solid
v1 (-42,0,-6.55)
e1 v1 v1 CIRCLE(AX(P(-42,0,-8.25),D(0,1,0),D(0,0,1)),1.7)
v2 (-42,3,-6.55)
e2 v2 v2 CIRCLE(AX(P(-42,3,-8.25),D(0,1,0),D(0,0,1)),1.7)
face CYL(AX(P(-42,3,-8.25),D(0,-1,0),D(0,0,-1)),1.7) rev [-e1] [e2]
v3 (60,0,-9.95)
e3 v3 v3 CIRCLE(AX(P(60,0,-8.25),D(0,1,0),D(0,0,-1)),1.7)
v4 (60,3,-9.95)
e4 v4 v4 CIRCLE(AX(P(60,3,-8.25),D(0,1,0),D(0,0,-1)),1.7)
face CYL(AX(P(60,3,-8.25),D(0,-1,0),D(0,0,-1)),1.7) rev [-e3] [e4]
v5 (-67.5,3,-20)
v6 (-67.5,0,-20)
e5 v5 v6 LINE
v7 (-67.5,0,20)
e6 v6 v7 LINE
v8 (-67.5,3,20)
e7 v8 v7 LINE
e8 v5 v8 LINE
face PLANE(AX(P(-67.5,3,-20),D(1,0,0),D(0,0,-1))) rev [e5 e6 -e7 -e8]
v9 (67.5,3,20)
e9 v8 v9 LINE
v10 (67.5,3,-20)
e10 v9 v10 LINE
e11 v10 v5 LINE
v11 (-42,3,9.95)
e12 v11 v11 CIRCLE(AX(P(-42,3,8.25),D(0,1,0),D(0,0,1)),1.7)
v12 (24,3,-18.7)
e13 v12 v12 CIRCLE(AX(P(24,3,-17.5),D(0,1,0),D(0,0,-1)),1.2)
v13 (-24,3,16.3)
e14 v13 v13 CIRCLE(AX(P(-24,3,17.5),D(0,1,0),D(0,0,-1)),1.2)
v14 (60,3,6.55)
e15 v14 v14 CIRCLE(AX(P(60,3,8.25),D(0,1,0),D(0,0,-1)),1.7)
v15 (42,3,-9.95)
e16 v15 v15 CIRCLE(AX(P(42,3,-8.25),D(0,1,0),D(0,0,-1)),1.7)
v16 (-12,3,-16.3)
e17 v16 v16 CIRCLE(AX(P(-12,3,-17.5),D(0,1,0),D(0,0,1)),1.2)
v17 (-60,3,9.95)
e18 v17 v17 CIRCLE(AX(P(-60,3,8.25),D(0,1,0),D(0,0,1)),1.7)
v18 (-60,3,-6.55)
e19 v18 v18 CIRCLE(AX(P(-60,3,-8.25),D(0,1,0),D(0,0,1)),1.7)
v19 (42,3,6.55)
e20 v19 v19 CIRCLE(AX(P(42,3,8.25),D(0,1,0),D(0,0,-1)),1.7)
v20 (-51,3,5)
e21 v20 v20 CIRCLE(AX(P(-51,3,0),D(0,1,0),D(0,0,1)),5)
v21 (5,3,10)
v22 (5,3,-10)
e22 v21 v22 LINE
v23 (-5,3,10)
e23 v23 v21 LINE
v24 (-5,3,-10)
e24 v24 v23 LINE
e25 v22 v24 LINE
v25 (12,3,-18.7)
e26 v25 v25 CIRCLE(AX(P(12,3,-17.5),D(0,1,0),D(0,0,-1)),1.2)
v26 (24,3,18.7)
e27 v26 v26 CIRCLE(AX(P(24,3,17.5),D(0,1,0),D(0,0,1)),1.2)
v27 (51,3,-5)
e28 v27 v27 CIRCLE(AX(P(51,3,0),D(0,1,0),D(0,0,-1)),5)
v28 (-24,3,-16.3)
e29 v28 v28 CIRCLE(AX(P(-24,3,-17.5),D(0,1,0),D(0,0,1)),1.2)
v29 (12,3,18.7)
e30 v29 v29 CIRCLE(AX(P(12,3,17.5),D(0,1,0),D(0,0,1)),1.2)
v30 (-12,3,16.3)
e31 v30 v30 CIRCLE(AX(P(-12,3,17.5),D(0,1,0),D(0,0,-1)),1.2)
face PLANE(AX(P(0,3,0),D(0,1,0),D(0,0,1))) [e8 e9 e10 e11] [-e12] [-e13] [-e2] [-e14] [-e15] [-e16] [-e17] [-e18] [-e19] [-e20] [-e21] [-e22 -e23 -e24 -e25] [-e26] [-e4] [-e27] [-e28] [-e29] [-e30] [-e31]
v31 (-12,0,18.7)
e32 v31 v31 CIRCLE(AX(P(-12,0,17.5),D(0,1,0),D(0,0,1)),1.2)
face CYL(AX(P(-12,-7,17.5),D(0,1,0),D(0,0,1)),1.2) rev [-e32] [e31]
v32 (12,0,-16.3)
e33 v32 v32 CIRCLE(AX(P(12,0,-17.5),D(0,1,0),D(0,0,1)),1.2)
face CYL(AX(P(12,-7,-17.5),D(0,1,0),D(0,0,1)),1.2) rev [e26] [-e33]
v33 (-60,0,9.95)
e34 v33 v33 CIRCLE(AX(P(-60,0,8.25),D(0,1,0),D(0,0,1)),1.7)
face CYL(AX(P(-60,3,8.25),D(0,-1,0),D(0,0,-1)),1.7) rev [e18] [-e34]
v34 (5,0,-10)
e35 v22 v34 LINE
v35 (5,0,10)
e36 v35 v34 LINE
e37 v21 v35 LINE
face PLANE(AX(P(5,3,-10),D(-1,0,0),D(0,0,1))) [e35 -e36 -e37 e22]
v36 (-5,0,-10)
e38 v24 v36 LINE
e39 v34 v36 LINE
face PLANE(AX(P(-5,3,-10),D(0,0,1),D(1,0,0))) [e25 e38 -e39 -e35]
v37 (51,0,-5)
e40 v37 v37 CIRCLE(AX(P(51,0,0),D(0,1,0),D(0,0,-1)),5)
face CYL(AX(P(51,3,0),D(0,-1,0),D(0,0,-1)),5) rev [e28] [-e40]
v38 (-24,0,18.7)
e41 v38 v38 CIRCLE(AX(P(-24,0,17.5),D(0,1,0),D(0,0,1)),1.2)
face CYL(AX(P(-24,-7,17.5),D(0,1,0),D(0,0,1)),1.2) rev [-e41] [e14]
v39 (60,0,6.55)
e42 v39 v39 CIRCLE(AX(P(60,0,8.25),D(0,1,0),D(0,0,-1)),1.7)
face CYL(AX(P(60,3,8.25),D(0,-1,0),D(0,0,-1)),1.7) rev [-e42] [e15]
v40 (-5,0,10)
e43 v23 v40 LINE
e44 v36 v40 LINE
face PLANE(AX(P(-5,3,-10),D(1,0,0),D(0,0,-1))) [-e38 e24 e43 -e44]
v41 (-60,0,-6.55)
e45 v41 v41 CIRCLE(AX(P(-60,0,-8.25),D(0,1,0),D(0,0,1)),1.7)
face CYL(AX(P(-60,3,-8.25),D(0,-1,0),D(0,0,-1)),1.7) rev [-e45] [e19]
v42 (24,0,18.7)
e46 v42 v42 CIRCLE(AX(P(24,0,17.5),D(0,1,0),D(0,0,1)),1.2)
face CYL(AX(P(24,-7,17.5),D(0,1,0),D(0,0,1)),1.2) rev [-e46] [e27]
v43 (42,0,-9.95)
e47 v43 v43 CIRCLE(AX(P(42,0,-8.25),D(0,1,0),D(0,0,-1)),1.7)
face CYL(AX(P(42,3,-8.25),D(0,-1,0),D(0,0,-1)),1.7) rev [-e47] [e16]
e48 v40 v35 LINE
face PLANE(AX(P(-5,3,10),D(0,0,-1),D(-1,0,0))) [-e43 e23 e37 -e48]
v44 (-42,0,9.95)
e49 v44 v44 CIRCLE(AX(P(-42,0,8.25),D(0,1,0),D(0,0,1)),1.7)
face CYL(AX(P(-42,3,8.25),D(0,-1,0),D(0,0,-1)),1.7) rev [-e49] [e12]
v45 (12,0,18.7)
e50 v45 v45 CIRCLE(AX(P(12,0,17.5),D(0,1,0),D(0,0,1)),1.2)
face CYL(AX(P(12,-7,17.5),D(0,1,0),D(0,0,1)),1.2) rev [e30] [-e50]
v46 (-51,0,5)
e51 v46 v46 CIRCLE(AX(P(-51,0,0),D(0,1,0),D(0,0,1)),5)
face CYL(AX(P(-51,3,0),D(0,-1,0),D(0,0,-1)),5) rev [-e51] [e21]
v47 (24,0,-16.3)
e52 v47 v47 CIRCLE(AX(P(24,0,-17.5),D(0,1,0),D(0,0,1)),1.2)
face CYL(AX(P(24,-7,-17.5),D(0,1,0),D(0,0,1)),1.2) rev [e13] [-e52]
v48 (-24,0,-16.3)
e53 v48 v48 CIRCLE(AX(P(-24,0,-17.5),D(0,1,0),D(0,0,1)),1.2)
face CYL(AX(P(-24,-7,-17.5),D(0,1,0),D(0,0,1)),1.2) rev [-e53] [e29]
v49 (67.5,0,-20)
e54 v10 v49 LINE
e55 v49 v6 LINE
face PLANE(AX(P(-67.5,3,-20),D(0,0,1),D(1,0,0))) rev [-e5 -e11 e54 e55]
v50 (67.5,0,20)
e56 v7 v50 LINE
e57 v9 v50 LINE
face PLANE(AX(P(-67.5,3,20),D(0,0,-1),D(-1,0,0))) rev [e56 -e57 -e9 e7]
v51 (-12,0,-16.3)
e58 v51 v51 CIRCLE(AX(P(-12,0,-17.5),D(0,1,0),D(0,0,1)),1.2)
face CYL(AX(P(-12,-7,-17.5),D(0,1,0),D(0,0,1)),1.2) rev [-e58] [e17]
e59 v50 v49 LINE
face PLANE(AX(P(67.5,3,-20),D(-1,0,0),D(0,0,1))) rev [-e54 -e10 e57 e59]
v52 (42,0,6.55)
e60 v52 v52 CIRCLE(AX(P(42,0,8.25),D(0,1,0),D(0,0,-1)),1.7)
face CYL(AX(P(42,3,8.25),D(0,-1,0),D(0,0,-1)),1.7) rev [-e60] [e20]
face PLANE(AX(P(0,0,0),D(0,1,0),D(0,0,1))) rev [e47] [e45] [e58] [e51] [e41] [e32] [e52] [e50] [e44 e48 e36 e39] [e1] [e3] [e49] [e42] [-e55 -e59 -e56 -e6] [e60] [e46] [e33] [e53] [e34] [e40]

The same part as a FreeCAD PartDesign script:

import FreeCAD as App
import Part
import Sketcher


def add_polygon(sketch, points):
    """Adds a closed chain of lines whose ends are joined by coincident constraints."""
    first, n = sketch.GeometryCount, len(points)
    for a, b in zip(points, points[1:] + points[:1]):
        sketch.addGeometry(Part.LineSegment(App.Vector(*a, 0), App.Vector(*b, 0)), False)
    for i in range(n):
        sketch.addConstraint(Sketcher.Constraint("Coincident", first + i, 2, first + (i + 1) % n, 1))

doc = App.newDocument("Part")
body = doc.addObject("PartDesign::Body", "Body")

sketch1 = body.newObject("Sketcher::SketchObject", "Sketch")
sketch1.AttachmentSupport = (doc.getObject("XZ_Plane"), [""])
sketch1.MapMode = "FlatFace"
add_polygon(sketch1, [(-67.5, -20), (-67.5, 20), (67.5, 20), (67.5, -20)])
sketch1.addGeometry(Part.Circle(App.Vector(-60, 8.25, 0), App.Vector(0, 0, 1), 1.7), False)
sketch1.addGeometry(Part.Circle(App.Vector(-42, 8.25, 0), App.Vector(0, 0, 1), 1.7), False)
sketch1.addGeometry(Part.Circle(App.Vector(42, 8.25, 0), App.Vector(0, 0, 1), 1.7), False)
sketch1.addGeometry(Part.Circle(App.Vector(60, 8.25, 0), App.Vector(0, 0, 1), 1.7), False)
sketch1.addGeometry(Part.Circle(App.Vector(-51, 0, 0), App.Vector(0, 0, 1), 5), False)
sketch1.addGeometry(Part.Circle(App.Vector(-60, -8.25, 0), App.Vector(0, 0, 1), 1.7), False)
sketch1.addGeometry(Part.Circle(App.Vector(-42, -8.25, 0), App.Vector(0, 0, 1), 1.7), False)
add_polygon(sketch1, [(5, 10), (-5, 10), (-5, -10), (5, -10)])
sketch1.addGeometry(Part.Circle(App.Vector(51, 0, 0), App.Vector(0, 0, 1), 5), False)
sketch1.addGeometry(Part.Circle(App.Vector(42, -8.25, 0), App.Vector(0, 0, 1), 1.7), False)
sketch1.addGeometry(Part.Circle(App.Vector(60, -8.25, 0), App.Vector(0, 0, 1), 1.7), False)
sketch1.addConstraint([
    Sketcher.Constraint("Vertical", 0),
    Sketcher.Constraint("Horizontal", 1),
    Sketcher.Constraint("Vertical", 2),
    Sketcher.Constraint("Horizontal", 3),
    Sketcher.Constraint("Horizontal", 11),
    Sketcher.Constraint("Vertical", 12),
    Sketcher.Constraint("Horizontal", 13),
    Sketcher.Constraint("Vertical", 14),
    Sketcher.Constraint("Equal", 4, 5),
    Sketcher.Constraint("Equal", 5, 6),
    Sketcher.Constraint("Equal", 6, 7),
    Sketcher.Constraint("Equal", 7, 9),
    Sketcher.Constraint("Equal", 9, 10),
    Sketcher.Constraint("Equal", 8, 15),
    Sketcher.Constraint("Equal", 10, 16),
    Sketcher.Constraint("Equal", 16, 17),
    Sketcher.Constraint("Symmetric", 7, 3, 9, 3, -1, 1),
    Sketcher.Constraint("Symmetric", 6, 3, 10, 3, -1, 1),
    Sketcher.Constraint("Symmetric", 8, 3, 15, 3, -1, 1),
    Sketcher.Constraint("Symmetric", 5, 3, 16, 3, -1, 1),
    Sketcher.Constraint("Symmetric", 4, 3, 17, 3, -1, 1),
    Sketcher.Constraint("Symmetric", 0, 2, 2, 2, -1, 1),
    Sketcher.Constraint("Symmetric", 11, 2, 13, 2, -1, 1),
    Sketcher.Constraint("Symmetric", 5, 3, 6, 3, -2),
    Sketcher.Constraint("Symmetric", 4, 3, 7, 3, -2),
    Sketcher.Constraint("PointOnObject", 8, 3, -1),
    Sketcher.Constraint("Horizontal", 4, 3, 5, 3),
    Sketcher.Constraint("Diameter", 8, 10.0),
    Sketcher.Constraint("Diameter", 4, 3.4),
    Sketcher.Constraint("DistanceX", 1, 1, 1, 2, 135.0),
    Sketcher.Constraint("DistanceX", 11, 2, 11, 1, 10.0),
    Sketcher.Constraint("DistanceY", 0, 1, 0, 2, 40.0),
    Sketcher.Constraint("DistanceY", 12, 2, 12, 1, 20.0),
    Sketcher.Constraint("DistanceX", 4, 3, -1, 1, 60.0),
    Sketcher.Constraint("DistanceX", 5, 3, -1, 1, 42.0),
    Sketcher.Constraint("DistanceX", 8, 3, -1, 1, 51.0),
    Sketcher.Constraint("DistanceY", 9, 3, 4, 3, 16.5),
])
pad1 = body.newObject("PartDesign::Pad", "Pad")
pad1.Profile = sketch1
pad1.Length = 3
pad1.Reversed = True

sketch2 = body.newObject("Sketcher::SketchObject", "Sketch001")
sketch2.AttachmentSupport = (doc.getObject("XZ_Plane"), [""])
sketch2.MapMode = "FlatFace"
sketch2.AttachmentOffset = App.Placement(App.Vector(0, 0, -3), App.Rotation())
sketch2.addGeometry([
    Part.Circle(App.Vector(-12, -17.5, 0), App.Vector(0, 0, 1), 1.2),
    Part.Circle(App.Vector(-12, 17.5, 0), App.Vector(0, 0, 1), 1.2),
    Part.Circle(App.Vector(-24, -17.5, 0), App.Vector(0, 0, 1), 1.2),
    Part.Circle(App.Vector(-24, 17.5, 0), App.Vector(0, 0, 1), 1.2),
    Part.Circle(App.Vector(24, 17.5, 0), App.Vector(0, 0, 1), 1.2),
    Part.Circle(App.Vector(24, -17.5, 0), App.Vector(0, 0, 1), 1.2),
    Part.Circle(App.Vector(12, 17.5, 0), App.Vector(0, 0, 1), 1.2),
    Part.Circle(App.Vector(12, -17.5, 0), App.Vector(0, 0, 1), 1.2),
], False)
sketch2.addConstraint([
    Sketcher.Constraint("Equal", 0, 1),
    Sketcher.Constraint("Equal", 1, 2),
    Sketcher.Constraint("Equal", 2, 3),
    Sketcher.Constraint("Equal", 3, 4),
    Sketcher.Constraint("Equal", 4, 5),
    Sketcher.Constraint("Equal", 5, 6),
    Sketcher.Constraint("Equal", 6, 7),
    Sketcher.Constraint("Symmetric", 2, 3, 4, 3, -1, 1),
    Sketcher.Constraint("Symmetric", 3, 3, 5, 3, -1, 1),
    Sketcher.Constraint("Symmetric", 0, 3, 6, 3, -1, 1),
    Sketcher.Constraint("Symmetric", 1, 3, 7, 3, -1, 1),
    Sketcher.Constraint("Symmetric", 3, 3, 4, 3, -2),
    Sketcher.Constraint("Symmetric", 1, 3, 6, 3, -2),
    Sketcher.Constraint("Horizontal", 0, 3, 2, 3),
    Sketcher.Constraint("Diameter", 0, 2.4),
    Sketcher.Constraint("DistanceX", 0, 3, -1, 1, 12.0),
    Sketcher.Constraint("DistanceX", 2, 3, -1, 1, 24.0),
    Sketcher.Constraint("DistanceY", 0, 3, 1, 3, 35.0),
])
pocket1 = body.newObject("PartDesign::Pocket", "Pocket")
pocket1.Profile = sketch2
pocket1.Length = 10
pocket1.Reversed = True

doc.recompute()
